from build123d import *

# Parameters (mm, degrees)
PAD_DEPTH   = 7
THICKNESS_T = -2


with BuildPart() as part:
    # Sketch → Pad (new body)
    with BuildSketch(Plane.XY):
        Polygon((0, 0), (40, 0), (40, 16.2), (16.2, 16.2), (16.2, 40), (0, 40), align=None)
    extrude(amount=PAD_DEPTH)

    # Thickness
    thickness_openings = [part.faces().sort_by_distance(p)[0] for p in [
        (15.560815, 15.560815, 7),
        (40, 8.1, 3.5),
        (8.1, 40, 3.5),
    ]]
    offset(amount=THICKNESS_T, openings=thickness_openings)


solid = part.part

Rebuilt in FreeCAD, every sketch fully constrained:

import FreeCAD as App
import Part
import Sketcher


def faces_at(feature, points):
    """Names of the faces that lie closest to the given points."""
    faces = feature.Shape.Faces
    near = lambda p: min(range(len(faces)), key=lambda i: faces[i].distToShape(Part.Vertex(*p))[0])
    return sorted({f"Face{near(p) + 1}" for p in points})

doc = App.newDocument("Part")
body = doc.addObject("PartDesign::Body", "Body")

# Sketch on XY plane
sketch1 = doc.addObject("Sketcher::SketchObject", "Sketch")
body.addObject(sketch1)
sketch1.AttachmentSupport = (doc.XY_Plane, [""])
sketch1.MapMode = "FlatFace"
sketch1.addGeometry([
    Part.LineSegment(App.Vector(0, 0, 0), App.Vector(40, 0, 0)),  # 0
    Part.LineSegment(App.Vector(40, 0, 0), App.Vector(40, 16, 0)),  # 1
    Part.LineSegment(App.Vector(40, 16, 0), App.Vector(16, 16, 0)),  # 2
    Part.LineSegment(App.Vector(16, 16, 0), App.Vector(16, 40, 0)),  # 3
    Part.LineSegment(App.Vector(16, 40, 0), App.Vector(0, 40, 0)),  # 4
    Part.LineSegment(App.Vector(0, 40, 0), App.Vector(0, 0, 0)),  # 5
], False)
sketch1.addConstraint([
    Sketcher.Constraint("Coincident", 0, 2, 1, 1),
    Sketcher.Constraint("Coincident", 1, 2, 2, 1),
    Sketcher.Constraint("Coincident", 2, 2, 3, 1),
    Sketcher.Constraint("Coincident", 3, 2, 4, 1),
    Sketcher.Constraint("Coincident", 4, 2, 5, 1),
    Sketcher.Constraint("Coincident", 5, 2, 0, 1),
    Sketcher.Constraint("Horizontal", 0),
    Sketcher.Constraint("Vertical", 1),
    Sketcher.Constraint("Horizontal", 2),
    Sketcher.Constraint("Vertical", 3),
    Sketcher.Constraint("Horizontal", 4),
    Sketcher.Constraint("Vertical", 5),
    Sketcher.Constraint("Coincident", 5, 2, -1, 1),
    Sketcher.Constraint("Equal", 4, 1),
    Sketcher.Constraint("Equal", 2, 3),
    Sketcher.Constraint("DistanceX", 0, 1, 0, 2, 40.0),
    Sketcher.Constraint("DistanceX", 2, 2, 2, 1, 23.8),
])
pad1 = doc.addObject("PartDesign::Pad", "Pad")
body.addObject(pad1)
pad1.Profile = sketch1
pad1.Length = 7
doc.recompute()

thickness = doc.addObject("PartDesign::Thickness", "Thickness")
body.addObject(thickness)
thickness.Base = (pad1, faces_at(pad1, [(12, 12, 7), (40, 8.1, 3.5), (8.1, 40, 3.5)]))
thickness.Value = 2
thickness.Reversed = True
thickness.Join = "Arc"

doc.recompute()
